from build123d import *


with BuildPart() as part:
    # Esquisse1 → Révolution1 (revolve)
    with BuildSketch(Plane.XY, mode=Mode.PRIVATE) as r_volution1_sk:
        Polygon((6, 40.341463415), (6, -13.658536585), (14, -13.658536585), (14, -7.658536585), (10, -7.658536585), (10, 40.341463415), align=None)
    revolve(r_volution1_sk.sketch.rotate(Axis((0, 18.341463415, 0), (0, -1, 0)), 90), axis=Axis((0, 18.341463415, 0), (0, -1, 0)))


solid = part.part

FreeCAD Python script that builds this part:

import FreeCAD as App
import Part
import Sketcher

V = App.Vector


def add_polygon(sketch, points):
    """Adds a closed chain of lines whose ends are joined by coincident constraints."""
    first, n = sketch.GeometryCount, len(points)
    for a, b in zip(points, points[1:] + points[:1]):
        sketch.addGeometry(Part.LineSegment(App.Vector(*a, 0), App.Vector(*b, 0)), False)
    for i in range(n):
        sketch.addConstraint(Sketcher.Constraint("Coincident", first + i, 2, first + (i + 1) % n, 1))

doc = App.newDocument("Part")
body = doc.addObject("PartDesign::Body", "Body")

sketch1 = doc.addObject("Sketcher::SketchObject", "Sketch")
body.addObject(sketch1)
sketch1.AttachmentSupport = (doc.XY_Plane, [""])
sketch1.MapMode = "FlatFace"
add_polygon(sketch1, [(6, 40.341463), (6, -13.658537), (14, -13.658537), (14, -7.658537), (10, -7.658537), (10, 40.341463)])
sketch1.addConstraint([
    Sketcher.Constraint("Vertical", 0),
    Sketcher.Constraint("Horizontal", 1),
    Sketcher.Constraint("Vertical", 2),
    Sketcher.Constraint("Horizontal", 3),
    Sketcher.Constraint("Vertical", 4),
    Sketcher.Constraint("Horizontal", 5),
    Sketcher.Constraint("Equal", 3, 5),
    Sketcher.Constraint("DistanceX", 1, 1, 1, 2, 8.0),
    Sketcher.Constraint("DistanceY", 0, 2, 0, 1, 54.0),
    Sketcher.Constraint("DistanceY", 2, 1, 2, 2, 6.0),
    Sketcher.Constraint("DistanceX", -1, 1, 0, 2, 6.0),
    Sketcher.Constraint("DistanceY", 0, 2, -1, 1, 13.658537),
])
revolution = doc.addObject("PartDesign::Revolution", "Revolution")
body.addObject(revolution)
revolution.Profile = sketch1
revolution.ReferenceAxis = (sketch1, ["V_Axis"])
revolution.Angle = 360

doc.recompute()
